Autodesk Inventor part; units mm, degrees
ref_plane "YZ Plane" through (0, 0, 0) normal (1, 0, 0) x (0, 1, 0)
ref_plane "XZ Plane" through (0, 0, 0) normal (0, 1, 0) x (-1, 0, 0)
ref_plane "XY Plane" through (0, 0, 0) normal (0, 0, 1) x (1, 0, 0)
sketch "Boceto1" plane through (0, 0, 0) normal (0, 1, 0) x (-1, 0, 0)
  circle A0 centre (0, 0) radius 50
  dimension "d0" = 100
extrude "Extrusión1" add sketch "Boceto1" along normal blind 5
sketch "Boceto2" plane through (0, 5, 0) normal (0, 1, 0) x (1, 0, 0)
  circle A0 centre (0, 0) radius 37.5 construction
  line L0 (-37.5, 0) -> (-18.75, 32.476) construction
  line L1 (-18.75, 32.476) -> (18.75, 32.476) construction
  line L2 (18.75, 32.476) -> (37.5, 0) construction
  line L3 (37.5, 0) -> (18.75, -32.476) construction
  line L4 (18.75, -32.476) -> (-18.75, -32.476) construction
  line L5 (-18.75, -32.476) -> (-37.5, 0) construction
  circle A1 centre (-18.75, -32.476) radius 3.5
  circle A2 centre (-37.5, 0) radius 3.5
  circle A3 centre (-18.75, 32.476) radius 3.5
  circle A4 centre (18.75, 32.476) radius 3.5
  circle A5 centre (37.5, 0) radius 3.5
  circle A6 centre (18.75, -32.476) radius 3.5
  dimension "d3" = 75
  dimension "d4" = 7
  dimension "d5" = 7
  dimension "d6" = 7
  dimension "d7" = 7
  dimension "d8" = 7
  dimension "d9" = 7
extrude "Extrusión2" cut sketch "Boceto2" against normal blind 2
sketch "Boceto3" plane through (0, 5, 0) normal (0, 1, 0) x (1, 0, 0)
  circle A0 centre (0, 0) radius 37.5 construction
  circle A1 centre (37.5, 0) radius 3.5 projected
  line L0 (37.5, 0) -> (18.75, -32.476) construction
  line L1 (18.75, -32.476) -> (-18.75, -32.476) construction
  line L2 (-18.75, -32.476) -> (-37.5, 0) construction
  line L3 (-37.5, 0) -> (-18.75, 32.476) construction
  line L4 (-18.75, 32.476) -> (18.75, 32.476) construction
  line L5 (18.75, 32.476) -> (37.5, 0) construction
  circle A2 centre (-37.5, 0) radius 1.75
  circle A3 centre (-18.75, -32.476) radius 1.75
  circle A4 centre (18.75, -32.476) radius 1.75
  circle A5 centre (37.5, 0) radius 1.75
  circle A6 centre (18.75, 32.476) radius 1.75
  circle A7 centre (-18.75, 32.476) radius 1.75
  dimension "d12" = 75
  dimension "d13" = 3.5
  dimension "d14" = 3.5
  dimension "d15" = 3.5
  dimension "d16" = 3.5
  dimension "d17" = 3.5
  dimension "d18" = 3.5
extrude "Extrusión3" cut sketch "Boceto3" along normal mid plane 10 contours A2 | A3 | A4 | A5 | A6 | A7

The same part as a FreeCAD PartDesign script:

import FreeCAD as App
import Part
import Sketcher

V = App.Vector
Q = App.Units.Quantity

doc = App.newDocument("Part")
body = doc.addObject("PartDesign::Body", "Body")

sketch1 = body.newObject("Sketcher::SketchObject", "Sketch")
sketch1.AttachmentSupport = (doc.getObject("XZ_Plane"), [""])
sketch1.MapMode = "FlatFace"
sketch1.addGeometry(Part.Circle(V(0, 0, 0), V(0, 0, 1), 50), False)
sketch1.addConstraint([
    Sketcher.Constraint("Coincident", 0, 3, -1, 1),
    Sketcher.Constraint("Diameter", 0, Q("100 mm")),
])
pad1 = body.newObject("PartDesign::Pad", "Pad")
pad1.Profile = sketch1
pad1.Length = 5
pad1.Reversed = True

sketch2 = body.newObject("Sketcher::SketchObject", "Sketch001")
sketch2.AttachmentSupport = (doc.getObject("XZ_Plane"), [""])
sketch2.MapMode = "FlatFace"
sketch2.AttachmentOffset = App.Placement(V(0, 0, -5), App.Rotation())
sketch2.addGeometry([
    Part.Circle(V(-18.8, 32.5, 0), V(0, 0, 1), 3.5),
    Part.Circle(V(-37.5, 0, 0), V(0, 0, 1), 3.5),
    Part.Circle(V(-18.8, -32.5, 0), V(0, 0, 1), 3.5),
    Part.Circle(V(18.8, -32.5, 0), V(0, 0, 1), 3.5),
    Part.Circle(V(37.5, 0, 0), V(0, 0, 1), 3.5),
    Part.Circle(V(18.8, 32.5, 0), V(0, 0, 1), 3.5),
], False)
sketch2.addConstraint([
    Sketcher.Constraint("Equal", 0, 1),
    Sketcher.Constraint("Equal", 1, 2),
    Sketcher.Constraint("Equal", 2, 3),
    Sketcher.Constraint("Equal", 3, 4),
    Sketcher.Constraint("Equal", 4, 5),
    Sketcher.Constraint("Symmetric", 0, 3, 3, 3, -1, 1),
    Sketcher.Constraint("Symmetric", 1, 3, 4, 3, -1, 1),
    Sketcher.Constraint("Symmetric", 2, 3, 5, 3, -1, 1),
    Sketcher.Constraint("Symmetric", 2, 3, 3, 3, -2),
    Sketcher.Constraint("PointOnObject", 1, 3, -1),
    Sketcher.Constraint("Diameter", 0, Q("7 mm")),
    Sketcher.Constraint("DistanceX", 1, 3, 4, 3, Q("75 mm")),
    Sketcher.Constraint("DistanceX", 2, 3, 3, 3, Q("37.5 mm")),
    Sketcher.Constraint("DistanceY", -1, 1, 0, 3, Q("32.476 mm")),
])
pocket1 = body.newObject("PartDesign::Pocket", "Pocket")
pocket1.Profile = sketch2
pocket1.Length = 2
pocket1.Reversed = True

sketch3 = body.newObject("Sketcher::SketchObject", "Sketch002")
sketch3.AttachmentSupport = (doc.getObject("XZ_Plane"), [""])
sketch3.MapMode = "FlatFace"
sketch3.AttachmentOffset = App.Placement(V(0, 0, -5), App.Rotation())
sketch3.addGeometry([
    Part.Circle(V(-37.5, 0, 0), V(0, 0, 1), 1.8),
    Part.Circle(V(-18.8, 32.5, 0), V(0, 0, 1), 1.8),
    Part.Circle(V(18.8, 32.5, 0), V(0, 0, 1), 1.8),
    Part.Circle(V(37.5, 0, 0), V(0, 0, 1), 1.8),
    Part.Circle(V(18.8, -32.5, 0), V(0, 0, 1), 1.8),
    Part.Circle(V(-18.8, -32.5, 0), V(0, 0, 1), 1.8),
], False)
sketch3.addConstraint([
    Sketcher.Constraint("Equal", 0, 1),
    Sketcher.Constraint("Equal", 1, 2),
    Sketcher.Constraint("Equal", 2, 3),
    Sketcher.Constraint("Equal", 3, 4),
    Sketcher.Constraint("Equal", 4, 5),
    Sketcher.Constraint("Symmetric", 0, 3, 3, 3, -1, 1),
    Sketcher.Constraint("Symmetric", 1, 3, 4, 3, -1, 1),
    Sketcher.Constraint("Symmetric", 2, 3, 5, 3, -1, 1),
    Sketcher.Constraint("Symmetric", 1, 3, 2, 3, -2),
    Sketcher.Constraint("PointOnObject", 0, 3, -1),
    Sketcher.Constraint("Diameter", 0, Q("3.5 mm")),
    Sketcher.Constraint("DistanceX", 0, 3, 3, 3, Q("75 mm")),
    Sketcher.Constraint("DistanceX", 1, 3, 2, 3, Q("37.5 mm")),
    Sketcher.Constraint("DistanceY", -1, 1, 1, 3, Q("32.476 mm")),
])
pocket2 = body.newObject("PartDesign::Pocket", "Pocket001")
pocket2.Profile = sketch3
pocket2.Length = 10
pocket2.Midplane = True

doc.recompute()
